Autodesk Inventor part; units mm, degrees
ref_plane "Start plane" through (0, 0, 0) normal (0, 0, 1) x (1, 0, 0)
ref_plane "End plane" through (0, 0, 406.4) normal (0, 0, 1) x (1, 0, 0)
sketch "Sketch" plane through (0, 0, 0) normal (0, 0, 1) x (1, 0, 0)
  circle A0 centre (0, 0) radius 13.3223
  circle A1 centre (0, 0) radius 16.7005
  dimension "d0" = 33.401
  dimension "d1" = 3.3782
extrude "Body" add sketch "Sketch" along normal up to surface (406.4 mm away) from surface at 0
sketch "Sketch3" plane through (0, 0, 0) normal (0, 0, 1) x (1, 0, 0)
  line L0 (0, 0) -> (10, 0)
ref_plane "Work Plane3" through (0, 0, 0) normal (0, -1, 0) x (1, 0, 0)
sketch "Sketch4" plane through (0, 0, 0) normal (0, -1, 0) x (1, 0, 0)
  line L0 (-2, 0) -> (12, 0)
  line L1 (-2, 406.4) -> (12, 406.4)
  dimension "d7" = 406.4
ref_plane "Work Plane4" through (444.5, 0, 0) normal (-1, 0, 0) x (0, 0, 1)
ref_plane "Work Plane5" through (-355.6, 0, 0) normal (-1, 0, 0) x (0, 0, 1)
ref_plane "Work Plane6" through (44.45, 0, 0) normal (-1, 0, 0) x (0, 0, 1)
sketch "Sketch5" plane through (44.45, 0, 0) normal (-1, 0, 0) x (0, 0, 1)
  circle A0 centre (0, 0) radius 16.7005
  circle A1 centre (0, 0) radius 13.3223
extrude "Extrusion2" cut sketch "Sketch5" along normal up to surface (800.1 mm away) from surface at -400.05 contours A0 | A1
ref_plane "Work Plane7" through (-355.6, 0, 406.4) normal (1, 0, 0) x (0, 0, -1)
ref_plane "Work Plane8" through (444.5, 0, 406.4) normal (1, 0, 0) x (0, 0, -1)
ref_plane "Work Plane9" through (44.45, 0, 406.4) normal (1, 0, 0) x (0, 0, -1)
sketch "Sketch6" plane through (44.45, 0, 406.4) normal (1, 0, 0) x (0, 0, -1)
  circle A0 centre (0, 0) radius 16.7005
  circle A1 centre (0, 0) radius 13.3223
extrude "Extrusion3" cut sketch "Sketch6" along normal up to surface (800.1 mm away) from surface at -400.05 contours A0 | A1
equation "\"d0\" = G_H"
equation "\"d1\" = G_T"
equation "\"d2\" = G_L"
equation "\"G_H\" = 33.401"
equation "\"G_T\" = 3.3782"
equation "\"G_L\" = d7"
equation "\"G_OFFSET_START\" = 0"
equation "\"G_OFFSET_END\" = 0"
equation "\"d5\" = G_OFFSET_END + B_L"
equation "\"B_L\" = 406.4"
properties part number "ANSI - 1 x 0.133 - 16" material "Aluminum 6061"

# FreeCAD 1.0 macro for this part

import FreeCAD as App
import Part
import Sketcher
Q = App.Units.Quantity

doc = App.newDocument("Part")
params = doc.addObject("Spreadsheet::Sheet", "Params")
for row, (alias, value) in enumerate([
    ("sketch1_diameter", "1.315 in"),
    ("sketch1_diameter2", "1.049 in"),
    ("pad1_length", "16 in"),
    ("sketch2_diameter", "1.315 in"),
    ("pocket1_length", "31.5 in"),
    ("sketch3_diameter", "1.315 in"),
    ("pocket2_length", "31.5 in"),
], start=1):
    params.set(f"A{row}", alias)
    params.set(f"B{row}", "=" + value)
    params.setAlias(f"B{row}", alias)

body = doc.addObject("PartDesign::Body", "Body")

sketch1 = body.newObject("Sketcher::SketchObject", "Sketch")
sketch1.AttachmentSupport = (doc.getObject("XY_Plane"), [""])
sketch1.MapMode = "FlatFace"
sketch1.addGeometry([
    Part.Circle(App.Vector(0, 0, 0), App.Vector(0, 0, 1), 17),
    Part.Circle(App.Vector(0, 0, 0), App.Vector(0, 0, 1), 13),
], False)
sketch1.addConstraint([
    Sketcher.Constraint("Coincident", 0, 3, -1, 1),
    Sketcher.Constraint("Coincident", 1, 3, -1, 1),
    Sketcher.Constraint("Diameter", 0, Q("1.315 in")),
    Sketcher.Constraint("Diameter", 1, Q("1.049 in")),
])
sketch1.setExpression("Constraints[2]", "Params.sketch1_diameter")
sketch1.setExpression("Constraints[3]", "Params.sketch1_diameter2")
pad1 = body.newObject("PartDesign::Pad", "Pad")
pad1.Profile = sketch1
pad1.setExpression("Length", "Params.pad1_length")

sketch2 = body.newObject("Sketcher::SketchObject", "Sketch001")
sketch2.AttachmentSupport = (doc.getObject("YZ_Plane"), [""])
sketch2.MapMode = "FlatFace"
sketch2.AttachmentOffset = App.Placement(App.Vector(0, 0, 17.5 * 25.4), App.Rotation())
sketch2.addGeometry(Part.Circle(App.Vector(0, 0, 0), App.Vector(0, 0, 1), 17), False)
sketch2.addConstraint([
    Sketcher.Constraint("Coincident", 0, 3, -1, 1),
    Sketcher.Constraint("Diameter", 0, Q("1.315 in")),
])
sketch2.setExpression("Constraints[1]", "Params.sketch2_diameter")
pocket1 = body.newObject("PartDesign::Pocket", "Pocket")
pocket1.Profile = sketch2
pocket1.setExpression("Length", "Params.pocket1_length")

sketch3 = body.newObject("Sketcher::SketchObject", "Sketch002")
sketch3.AttachmentSupport = (doc.getObject("YZ_Plane"), [""])
sketch3.MapMode = "FlatFace"
sketch3.AttachmentOffset = App.Placement(App.Vector(0, 0, -14 * 25.4), App.Rotation())
sketch3.addGeometry(Part.Circle(App.Vector(0, 406, 0), App.Vector(0, 0, 1), 17), False)
sketch3.addConstraint([
    Sketcher.Constraint("PointOnObject", 0, 3, -2),
    Sketcher.Constraint("Diameter", 0, Q("1.315 in")),
    Sketcher.Constraint("DistanceY", -1, 1, 0, 3, Q("16 in")),
])
sketch3.setExpression("Constraints[1]", "Params.sketch3_diameter")
pocket2 = body.newObject("PartDesign::Pocket", "Pocket001")
pocket2.Profile = sketch3
pocket2.setExpression("Length", "Params.pocket2_length")
pocket2.Reversed = True

doc.recompute()
